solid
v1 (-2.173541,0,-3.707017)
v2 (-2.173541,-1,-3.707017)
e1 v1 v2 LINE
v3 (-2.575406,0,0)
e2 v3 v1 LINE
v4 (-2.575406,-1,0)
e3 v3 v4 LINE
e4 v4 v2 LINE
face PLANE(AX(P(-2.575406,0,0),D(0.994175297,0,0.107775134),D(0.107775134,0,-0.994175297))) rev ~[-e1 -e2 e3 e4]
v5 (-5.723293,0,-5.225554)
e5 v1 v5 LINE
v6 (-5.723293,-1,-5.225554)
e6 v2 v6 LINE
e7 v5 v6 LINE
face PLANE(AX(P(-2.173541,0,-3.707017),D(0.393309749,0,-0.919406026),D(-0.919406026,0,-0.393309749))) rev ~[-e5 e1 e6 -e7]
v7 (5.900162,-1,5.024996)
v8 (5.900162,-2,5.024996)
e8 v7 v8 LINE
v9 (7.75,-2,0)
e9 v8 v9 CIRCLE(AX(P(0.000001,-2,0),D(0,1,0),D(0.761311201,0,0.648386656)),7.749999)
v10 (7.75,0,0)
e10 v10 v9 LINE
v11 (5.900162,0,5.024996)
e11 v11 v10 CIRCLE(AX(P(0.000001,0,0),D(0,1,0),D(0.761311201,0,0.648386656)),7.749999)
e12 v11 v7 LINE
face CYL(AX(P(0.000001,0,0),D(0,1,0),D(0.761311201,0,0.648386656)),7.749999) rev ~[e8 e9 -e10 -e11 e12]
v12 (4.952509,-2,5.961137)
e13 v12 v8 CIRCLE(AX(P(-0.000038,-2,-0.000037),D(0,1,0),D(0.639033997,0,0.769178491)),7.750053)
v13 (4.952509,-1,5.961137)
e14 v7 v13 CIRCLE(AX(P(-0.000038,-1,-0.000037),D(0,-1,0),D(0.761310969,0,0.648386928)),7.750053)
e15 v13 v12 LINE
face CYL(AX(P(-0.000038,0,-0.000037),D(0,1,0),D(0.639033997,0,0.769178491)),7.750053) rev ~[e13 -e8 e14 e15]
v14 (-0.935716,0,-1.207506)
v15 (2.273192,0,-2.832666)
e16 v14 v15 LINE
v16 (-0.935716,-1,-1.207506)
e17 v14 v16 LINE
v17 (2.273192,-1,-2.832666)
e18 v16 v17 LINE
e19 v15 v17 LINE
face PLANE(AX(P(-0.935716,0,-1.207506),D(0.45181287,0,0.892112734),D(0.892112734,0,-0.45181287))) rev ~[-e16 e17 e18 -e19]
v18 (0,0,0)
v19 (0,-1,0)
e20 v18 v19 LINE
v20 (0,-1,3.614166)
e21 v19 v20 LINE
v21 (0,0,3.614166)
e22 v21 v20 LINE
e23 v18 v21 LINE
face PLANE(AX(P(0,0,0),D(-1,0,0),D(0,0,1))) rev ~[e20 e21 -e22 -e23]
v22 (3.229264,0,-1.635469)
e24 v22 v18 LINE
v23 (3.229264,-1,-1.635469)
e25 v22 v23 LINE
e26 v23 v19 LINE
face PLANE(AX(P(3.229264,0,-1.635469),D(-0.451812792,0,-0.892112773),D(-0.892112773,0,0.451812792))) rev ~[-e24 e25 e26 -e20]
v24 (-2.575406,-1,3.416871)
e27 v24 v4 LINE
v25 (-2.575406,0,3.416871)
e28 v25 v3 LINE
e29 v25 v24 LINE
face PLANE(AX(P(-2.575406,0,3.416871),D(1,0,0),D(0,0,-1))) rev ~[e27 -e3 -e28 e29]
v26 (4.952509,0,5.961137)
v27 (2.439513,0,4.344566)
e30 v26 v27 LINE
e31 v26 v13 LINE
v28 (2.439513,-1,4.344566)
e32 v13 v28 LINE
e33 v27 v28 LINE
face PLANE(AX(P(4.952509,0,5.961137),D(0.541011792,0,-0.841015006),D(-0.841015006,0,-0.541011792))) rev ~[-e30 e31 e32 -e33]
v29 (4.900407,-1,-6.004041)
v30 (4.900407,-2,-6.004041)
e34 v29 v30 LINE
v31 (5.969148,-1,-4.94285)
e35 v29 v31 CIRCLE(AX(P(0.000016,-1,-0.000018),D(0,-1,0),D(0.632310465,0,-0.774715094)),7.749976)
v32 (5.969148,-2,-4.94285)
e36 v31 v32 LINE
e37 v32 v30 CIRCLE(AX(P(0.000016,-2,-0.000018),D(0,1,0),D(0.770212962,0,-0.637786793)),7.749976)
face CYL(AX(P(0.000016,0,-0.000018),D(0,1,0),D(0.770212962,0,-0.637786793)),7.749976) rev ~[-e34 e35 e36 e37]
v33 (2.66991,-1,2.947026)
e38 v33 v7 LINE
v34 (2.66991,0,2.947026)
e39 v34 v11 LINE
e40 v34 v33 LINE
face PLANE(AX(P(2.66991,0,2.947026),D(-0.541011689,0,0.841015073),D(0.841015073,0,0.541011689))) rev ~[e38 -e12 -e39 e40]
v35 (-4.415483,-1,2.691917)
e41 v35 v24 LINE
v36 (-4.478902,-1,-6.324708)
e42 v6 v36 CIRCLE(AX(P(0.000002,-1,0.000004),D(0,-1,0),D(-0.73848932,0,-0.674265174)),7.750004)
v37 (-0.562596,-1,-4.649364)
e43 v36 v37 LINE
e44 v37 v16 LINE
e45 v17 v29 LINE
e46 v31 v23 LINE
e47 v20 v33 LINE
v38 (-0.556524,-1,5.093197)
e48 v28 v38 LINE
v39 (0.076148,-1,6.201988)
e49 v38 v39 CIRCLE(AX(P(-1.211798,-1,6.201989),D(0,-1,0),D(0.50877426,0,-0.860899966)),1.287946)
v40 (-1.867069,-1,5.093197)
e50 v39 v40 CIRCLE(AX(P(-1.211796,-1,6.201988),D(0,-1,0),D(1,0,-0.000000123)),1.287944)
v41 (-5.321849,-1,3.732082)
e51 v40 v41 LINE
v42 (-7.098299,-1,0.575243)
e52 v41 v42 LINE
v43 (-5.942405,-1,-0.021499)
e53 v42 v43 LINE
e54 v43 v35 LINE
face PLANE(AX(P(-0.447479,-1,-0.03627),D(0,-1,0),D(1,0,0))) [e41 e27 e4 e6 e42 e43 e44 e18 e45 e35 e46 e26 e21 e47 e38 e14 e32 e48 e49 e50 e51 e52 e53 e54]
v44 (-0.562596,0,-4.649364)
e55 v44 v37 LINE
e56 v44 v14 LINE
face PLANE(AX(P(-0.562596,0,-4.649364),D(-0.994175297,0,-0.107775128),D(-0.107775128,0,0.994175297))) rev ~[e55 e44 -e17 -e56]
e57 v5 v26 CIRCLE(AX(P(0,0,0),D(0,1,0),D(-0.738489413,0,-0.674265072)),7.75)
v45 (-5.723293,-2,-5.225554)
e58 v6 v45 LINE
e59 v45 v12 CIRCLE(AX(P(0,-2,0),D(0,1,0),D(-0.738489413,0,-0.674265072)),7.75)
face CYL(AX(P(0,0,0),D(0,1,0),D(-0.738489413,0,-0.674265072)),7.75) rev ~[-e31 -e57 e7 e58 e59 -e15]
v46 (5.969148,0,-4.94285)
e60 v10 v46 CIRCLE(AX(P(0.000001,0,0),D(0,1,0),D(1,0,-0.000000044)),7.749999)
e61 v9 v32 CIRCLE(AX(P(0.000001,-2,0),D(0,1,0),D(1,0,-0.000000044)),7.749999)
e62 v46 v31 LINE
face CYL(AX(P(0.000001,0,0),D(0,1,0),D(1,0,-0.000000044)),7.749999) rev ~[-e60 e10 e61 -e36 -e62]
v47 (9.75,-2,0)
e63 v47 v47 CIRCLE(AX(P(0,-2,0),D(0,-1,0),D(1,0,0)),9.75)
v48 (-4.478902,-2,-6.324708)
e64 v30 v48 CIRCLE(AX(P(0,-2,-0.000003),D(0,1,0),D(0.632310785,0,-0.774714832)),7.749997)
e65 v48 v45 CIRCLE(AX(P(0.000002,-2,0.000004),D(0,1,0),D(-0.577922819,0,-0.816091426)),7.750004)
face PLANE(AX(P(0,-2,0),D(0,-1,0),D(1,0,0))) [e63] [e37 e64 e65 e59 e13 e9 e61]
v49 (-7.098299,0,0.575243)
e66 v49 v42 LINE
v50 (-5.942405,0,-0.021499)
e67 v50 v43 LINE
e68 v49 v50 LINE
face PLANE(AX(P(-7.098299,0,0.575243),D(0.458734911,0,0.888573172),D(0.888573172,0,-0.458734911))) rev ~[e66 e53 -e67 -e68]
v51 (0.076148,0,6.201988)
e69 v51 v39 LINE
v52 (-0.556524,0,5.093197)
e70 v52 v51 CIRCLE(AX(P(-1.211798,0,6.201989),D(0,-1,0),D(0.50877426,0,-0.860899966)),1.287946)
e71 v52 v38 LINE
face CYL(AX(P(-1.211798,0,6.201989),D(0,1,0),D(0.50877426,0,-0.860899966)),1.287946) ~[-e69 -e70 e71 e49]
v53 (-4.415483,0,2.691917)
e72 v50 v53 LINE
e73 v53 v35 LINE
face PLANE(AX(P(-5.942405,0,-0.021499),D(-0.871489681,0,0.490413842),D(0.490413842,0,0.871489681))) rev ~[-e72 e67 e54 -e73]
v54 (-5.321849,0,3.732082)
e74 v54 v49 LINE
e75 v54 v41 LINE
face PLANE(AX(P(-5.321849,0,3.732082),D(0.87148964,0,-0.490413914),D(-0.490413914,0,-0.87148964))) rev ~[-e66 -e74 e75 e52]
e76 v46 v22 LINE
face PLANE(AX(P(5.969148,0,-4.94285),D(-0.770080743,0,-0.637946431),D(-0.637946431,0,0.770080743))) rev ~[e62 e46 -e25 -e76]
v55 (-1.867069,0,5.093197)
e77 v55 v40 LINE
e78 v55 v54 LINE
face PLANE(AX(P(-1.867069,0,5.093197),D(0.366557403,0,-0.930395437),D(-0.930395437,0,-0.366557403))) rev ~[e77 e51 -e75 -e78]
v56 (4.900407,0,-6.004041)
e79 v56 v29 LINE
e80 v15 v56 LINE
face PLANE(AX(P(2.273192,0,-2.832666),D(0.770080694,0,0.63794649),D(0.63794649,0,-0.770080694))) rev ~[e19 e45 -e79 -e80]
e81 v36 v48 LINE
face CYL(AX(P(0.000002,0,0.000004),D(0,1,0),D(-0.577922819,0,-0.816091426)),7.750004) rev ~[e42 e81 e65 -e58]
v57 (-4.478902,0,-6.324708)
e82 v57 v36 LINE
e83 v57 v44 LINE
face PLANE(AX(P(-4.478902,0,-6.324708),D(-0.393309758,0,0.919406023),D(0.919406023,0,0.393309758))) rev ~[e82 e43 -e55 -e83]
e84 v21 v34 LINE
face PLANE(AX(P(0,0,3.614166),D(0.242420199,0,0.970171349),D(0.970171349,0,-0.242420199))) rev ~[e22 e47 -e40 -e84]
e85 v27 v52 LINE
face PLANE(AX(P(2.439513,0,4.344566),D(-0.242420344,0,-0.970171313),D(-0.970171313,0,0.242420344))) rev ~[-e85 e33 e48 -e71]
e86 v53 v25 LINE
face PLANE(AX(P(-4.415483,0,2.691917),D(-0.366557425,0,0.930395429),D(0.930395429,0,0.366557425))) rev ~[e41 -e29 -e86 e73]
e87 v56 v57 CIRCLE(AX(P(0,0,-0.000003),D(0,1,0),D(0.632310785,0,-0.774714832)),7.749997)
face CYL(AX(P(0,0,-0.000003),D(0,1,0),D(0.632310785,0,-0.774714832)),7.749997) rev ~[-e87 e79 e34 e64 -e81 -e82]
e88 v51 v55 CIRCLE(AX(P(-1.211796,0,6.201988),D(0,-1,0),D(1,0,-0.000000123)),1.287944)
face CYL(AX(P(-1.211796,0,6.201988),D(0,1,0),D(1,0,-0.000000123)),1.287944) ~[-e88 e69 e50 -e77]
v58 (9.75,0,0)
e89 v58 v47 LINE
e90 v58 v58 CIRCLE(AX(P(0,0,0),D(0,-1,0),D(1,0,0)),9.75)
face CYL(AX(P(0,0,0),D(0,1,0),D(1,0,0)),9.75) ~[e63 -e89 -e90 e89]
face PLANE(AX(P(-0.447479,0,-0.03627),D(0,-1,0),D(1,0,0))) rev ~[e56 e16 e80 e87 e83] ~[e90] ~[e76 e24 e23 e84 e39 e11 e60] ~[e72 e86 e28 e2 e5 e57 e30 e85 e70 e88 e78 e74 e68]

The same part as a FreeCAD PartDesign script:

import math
import FreeCAD as App
import Part
import Sketcher
Q = App.Units.Quantity

doc = App.newDocument("Part")
body = doc.addObject("PartDesign::Body", "Body")

# Sketch on XZ plane
sketch1 = body.newObject("Sketcher::SketchObject", "Sketch")
sketch1.AttachmentSupport = (doc.getObject("XZ_Plane"), [""])
sketch1.MapMode = "FlatFace"
sketch1.addGeometry([
    Part.Circle(App.Vector(0, 0, 0), App.Vector(0, 0, 1), 9.75),  # 0
    Part.ArcOfCircle(Part.Circle(App.Vector(-0.000038, -0.000037, 0), App.Vector(0, 0, 1), 7.750053), math.radians(40.420093), math.radians(50.280175)),  # 1
    Part.ArcOfCircle(Part.Circle(App.Vector(0.000001, 0, 0), App.Vector(0, 0, 1), 7.749999), math.radians(0), math.radians(40.420073)),  # 2
    Part.ArcOfCircle(Part.Circle(App.Vector(0.000001, 0, 0), App.Vector(0, 0, 1), 7.749999), math.radians(-39.627014), math.radians(-0.000003)),  # 3
    Part.ArcOfCircle(Part.Circle(App.Vector(0.000016, -0.000018, 0), App.Vector(0, 0, 1), 7.749976), math.radians(-50.779209), math.radians(-39.626984)),  # 4
    Part.ArcOfCircle(Part.Circle(App.Vector(0, -0.000003, 0), App.Vector(0, 0, 1), 7.749997), math.radians(-125.304596), math.radians(-50.779185)),  # 5
    Part.ArcOfCircle(Part.Circle(App.Vector(0.000002, 0.000004, 0), App.Vector(0, 0, 1), 7.750004), math.radians(-137.602887), math.radians(-125.304577)),  # 6
    Part.ArcOfCircle(Part.Circle(App.Vector(0, 0, 0), App.Vector(0, 0, 1), 7.75), math.radians(50.280216), math.radians(222.397105)),  # 7
], False)
sketch1.addConstraint([
    Sketcher.Constraint("Coincident", 1, 1, 2, 2),
    Sketcher.Constraint("Coincident", 2, 1, 3, 2),
    Sketcher.Constraint("Coincident", 3, 1, 4, 2),
    Sketcher.Constraint("Coincident", 4, 1, 5, 2),
    Sketcher.Constraint("Coincident", 5, 1, 6, 2),
    Sketcher.Constraint("Coincident", 6, 1, 7, 2),
    Sketcher.Constraint("Coincident", 7, 1, 1, 2),
    Sketcher.Constraint("Coincident", 0, 3, -1, 1),
    Sketcher.Constraint("Coincident", 2, 3, -1, 1),
    Sketcher.Constraint("Coincident", 3, 3, -1, 1),
    Sketcher.Constraint("Coincident", 5, 3, -1, 1),
    Sketcher.Constraint("Coincident", 6, 3, -1, 1),
    Sketcher.Constraint("Coincident", 7, 3, -1, 1),
    Sketcher.Constraint("PointOnObject", 2, 1, -1),
    Sketcher.Constraint("Diameter", 0, Q("19.5 mm")),
    Sketcher.Constraint("Radius", 2, Q("7.749999 mm")),
    Sketcher.Constraint("Radius", 7, Q("7.75 mm")),
    Sketcher.Constraint("Radius", 1, Q("7.750053 mm")),
    Sketcher.Constraint("Radius", 4, Q("7.749976 mm")),
    Sketcher.Constraint("DistanceX", 5, 1, 7, 3, Q("4.478902 mm")),
    Sketcher.Constraint("DistanceX", -1, 1, 1, 1, Q("5.900162 mm")),
    Sketcher.Constraint("DistanceY", 3, 1, -1, 1, Q("4.94285 mm")),
    Sketcher.Constraint("DistanceY", 4, 1, -1, 1, Q("6.004041 mm")),
    Sketcher.Constraint("DistanceX", -1, 1, 7, 1, Q("4.952509 mm")),
    Sketcher.Constraint("DistanceX", 6, 1, 5, 1, Q("1.244391 mm")),
])
pad1 = body.newObject("PartDesign::Pad", "Pad")
pad1.Profile = sketch1
pad1.Length = 2

# Sketch on XZ plane
sketch2 = body.newObject("Sketcher::SketchObject", "Sketch001")
sketch2.AttachmentSupport = (doc.getObject("XZ_Plane"), [""])
sketch2.MapMode = "FlatFace"
sketch2.addGeometry([
    Part.LineSegment(App.Vector(2.7, 2.9, 0), App.Vector(5.9, 5, 0)),  # 0
    Part.ArcOfCircle(Part.Circle(App.Vector(0, 0, 0), App.Vector(0, 0, 1), 7.8), math.radians(40.42), math.radians(50.28)),  # 1
    Part.LineSegment(App.Vector(5, 6, 0), App.Vector(2.4, 4.3, 0)),  # 2
    Part.LineSegment(App.Vector(2.4, 4.3, 0), App.Vector(-0.6, 5.1, 0)),  # 3
    Part.ArcOfCircle(Part.Circle(App.Vector(-1.2, 6.2, 0), App.Vector(0, 0, 1), 1.3), math.radians(-59), math.radians(0)),  # 4
    Part.ArcOfCircle(Part.Circle(App.Vector(-1.2, 6.2, 0), App.Vector(0, 0, 1), 1.3), math.radians(0), math.radians(239)),  # 5
    Part.LineSegment(App.Vector(-1.9, 5.1, 0), App.Vector(-5.3, 3.7, 0)),  # 6
    Part.LineSegment(App.Vector(-5.3, 3.7, 0), App.Vector(-7.1, 0.6, 0)),  # 7
    Part.LineSegment(App.Vector(-7.1, 0.6, 0), App.Vector(-5.9, 0, 0)),  # 8
    Part.LineSegment(App.Vector(-5.9, 0, 0), App.Vector(-4.4, 2.7, 0)),  # 9
    Part.LineSegment(App.Vector(-4.4, 2.7, 0), App.Vector(-2.6, 3.4, 0)),  # 10
    Part.LineSegment(App.Vector(-2.6, 3.4, 0), App.Vector(-2.6, 0, 0)),  # 11
    Part.LineSegment(App.Vector(-2.6, 0, 0), App.Vector(-2.2, -3.7, 0)),  # 12
    Part.LineSegment(App.Vector(-2.2, -3.7, 0), App.Vector(-5.7, -5.2, 0)),  # 13
    Part.ArcOfCircle(Part.Circle(App.Vector(0, 0, 0), App.Vector(0, 0, 1), 7.8), math.radians(-137.6), math.radians(-125.3)),  # 14
    Part.LineSegment(App.Vector(-4.5, -6.3, 0), App.Vector(-0.6, -4.6, 0)),  # 15
    Part.LineSegment(App.Vector(-0.6, -4.6, 0), App.Vector(-0.9, -1.2, 0)),  # 16
    Part.LineSegment(App.Vector(-0.9, -1.2, 0), App.Vector(2.3, -2.8, 0)),  # 17
    Part.LineSegment(App.Vector(2.3, -2.8, 0), App.Vector(4.9, -6, 0)),  # 18
    Part.ArcOfCircle(Part.Circle(App.Vector(0, 0, 0), App.Vector(0, 0, 1), 7.7), math.radians(-50.78), math.radians(-39.63)),  # 19
    Part.LineSegment(App.Vector(6, -4.9, 0), App.Vector(3.2, -1.6, 0)),  # 20
    Part.LineSegment(App.Vector(3.2, -1.6, 0), App.Vector(0, 0, 0)),  # 21
    Part.LineSegment(App.Vector(0, 0, 0), App.Vector(0, 3.6, 0)),  # 22
    Part.LineSegment(App.Vector(0, 3.6, 0), App.Vector(2.7, 2.9, 0)),  # 23
], False)
sketch2.addConstraint([
    Sketcher.Constraint("Coincident", 0, 2, 1, 1),
    Sketcher.Constraint("Coincident", 1, 2, 2, 1),
    Sketcher.Constraint("Coincident", 2, 2, 3, 1),
    Sketcher.Constraint("Coincident", 3, 2, 4, 1),
    Sketcher.Constraint("Tangent", 4, 2, 5, 1),
    Sketcher.Constraint("Coincident", 5, 2, 6, 1),
    Sketcher.Constraint("Coincident", 6, 2, 7, 1),
    Sketcher.Constraint("Coincident", 7, 2, 8, 1),
    Sketcher.Constraint("Coincident", 8, 2, 9, 1),
    Sketcher.Constraint("Coincident", 9, 2, 10, 1),
    Sketcher.Constraint("Coincident", 10, 2, 11, 1),
    Sketcher.Constraint("Coincident", 11, 2, 12, 1),
    Sketcher.Constraint("Coincident", 12, 2, 13, 1),
    Sketcher.Constraint("Coincident", 13, 2, 14, 1),
    Sketcher.Constraint("Coincident", 14, 2, 15, 1),
    Sketcher.Constraint("Coincident", 15, 2, 16, 1),
    Sketcher.Constraint("Coincident", 16, 2, 17, 1),
    Sketcher.Constraint("Coincident", 17, 2, 18, 1),
    Sketcher.Constraint("Coincident", 18, 2, 19, 1),
    Sketcher.Constraint("Coincident", 19, 2, 20, 1),
    Sketcher.Constraint("Coincident", 20, 2, 21, 1),
    Sketcher.Constraint("Coincident", 21, 2, 22, 1),
    Sketcher.Constraint("Coincident", 22, 2, 23, 1),
    Sketcher.Constraint("Coincident", 23, 2, 0, 1),
    Sketcher.Constraint("Vertical", 11),
    Sketcher.Constraint("Vertical", 22),
    Sketcher.Constraint("Coincident", 14, 3, -1, 1),
    Sketcher.Constraint("Coincident", 21, 2, -1, 1),
    Sketcher.Constraint("Equal", 4, 5),
    Sketcher.Constraint("PointOnObject", 11, 2, -1),
    Sketcher.Constraint("Parallel", 0, 2),
    Sketcher.Constraint("Parallel", 7, 9),
    Sketcher.Constraint("Parallel", 6, 10),
    Sketcher.Constraint("Parallel", 13, 15),
    Sketcher.Constraint("Parallel", 12, 16),
    Sketcher.Constraint("Parallel", 18, 20),
    Sketcher.Constraint("Parallel", 17, 21),
    Sketcher.Constraint("Parallel", 3, 23),
    Sketcher.Constraint("Horizontal", 5, 3, 4, 2),
    Sketcher.Constraint("Horizontal", 3, 2, 5, 2),
    Sketcher.Constraint("Distance", 23, Q("2.751998 mm")),
    Sketcher.Constraint("Radius", 1, Q("7.750053 mm")),
    Sketcher.Constraint("Radius", 4, Q("1.287946 mm")),
    Sketcher.Constraint("Radius", 14, Q("7.750004 mm")),
    Sketcher.Constraint("Radius", 19, Q("7.749976 mm")),
    Sketcher.Constraint("DistanceX", 8, 2, 11, 2, Q("3.366999 mm")),
    Sketcher.Constraint("DistanceY", 12, 2, 19, 3, Q("3.706999 mm")),
    Sketcher.Constraint("DistanceY", 11, 2, 11, 1, Q("3.416871 mm")),
    Sketcher.Constraint("DistanceX", 7, 2, -1, 1, Q("7.098299 mm")),
    Sketcher.Constraint("DistanceY", 8, 2, -1, 1, Q("0.021499 mm")),
    Sketcher.Constraint("DistanceX", 5, 3, 14, 3, Q("1.211798 mm")),
    Sketcher.Constraint("DistanceX", 1, 3, 0, 2, Q("5.9002 mm")),
    Sketcher.Constraint("DistanceX", 15, 2, 14, 3, Q("0.562598 mm")),
    Sketcher.Constraint("DistanceY", 15, 2, 17, 2, Q("1.816698 mm")),
    Sketcher.Constraint("DistanceY", 22, 2, 2, 2, Q("0.7304 mm")),
    Sketcher.Constraint("DistanceX", 23, 2, 1, 2, Q("2.282599 mm")),
    Sketcher.Constraint("Distance", 2, Q("2.988051 mm")),
    Sketcher.Constraint("Distance", 6, Q("3.713238 mm")),
    Sketcher.Constraint("Distance", 7, Q("3.622348 mm")),
    Sketcher.Constraint("Distance", 13, Q("3.860919 mm")),
    Sketcher.Constraint("Distance", 20, Q("4.29485 mm")),
    Sketcher.Constraint("DistanceY", 22, 1, 22, 2, Q("3.614166 mm")),
    Sketcher.Constraint("DistanceY", -1, 1, 4, 3, Q("6.201989 mm")),
    Sketcher.Constraint("DistanceX", -1, 1, 1, 2, Q("4.952509 mm")),
    Sketcher.Constraint("DistanceX", 5, 2, -1, 1, Q("1.867069 mm")),
    Sketcher.Constraint("DistanceX", 6, 2, -1, 1, Q("5.321849 mm")),
    Sketcher.Constraint("DistanceX", 12, 2, -1, 1, Q("2.173541 mm")),
    Sketcher.Constraint("DistanceY", 14, 2, -1, 1, Q("6.324708 mm")),
    Sketcher.Constraint("DistanceX", -1, 1, 17, 2, Q("2.273192 mm")),
    Sketcher.Constraint("DistanceY", 18, 2, -1, 1, Q("6.004041 mm")),
    Sketcher.Constraint("DistanceY", 19, 2, -1, 1, Q("4.94285 mm")),
    Sketcher.Constraint("DistanceY", 20, 2, -1, 1, Q("1.635469 mm")),
    Sketcher.Constraint("DistanceX", 3, 2, 19, 3, Q("0.55654 mm")),
    Sketcher.Constraint("DistanceX", 8, 2, 19, 3, Q("5.942421 mm")),
])
pad2 = body.newObject("PartDesign::Pad", "Pad001")
pad2.Profile = sketch2
pad2.Length = 1

doc.recompute()
